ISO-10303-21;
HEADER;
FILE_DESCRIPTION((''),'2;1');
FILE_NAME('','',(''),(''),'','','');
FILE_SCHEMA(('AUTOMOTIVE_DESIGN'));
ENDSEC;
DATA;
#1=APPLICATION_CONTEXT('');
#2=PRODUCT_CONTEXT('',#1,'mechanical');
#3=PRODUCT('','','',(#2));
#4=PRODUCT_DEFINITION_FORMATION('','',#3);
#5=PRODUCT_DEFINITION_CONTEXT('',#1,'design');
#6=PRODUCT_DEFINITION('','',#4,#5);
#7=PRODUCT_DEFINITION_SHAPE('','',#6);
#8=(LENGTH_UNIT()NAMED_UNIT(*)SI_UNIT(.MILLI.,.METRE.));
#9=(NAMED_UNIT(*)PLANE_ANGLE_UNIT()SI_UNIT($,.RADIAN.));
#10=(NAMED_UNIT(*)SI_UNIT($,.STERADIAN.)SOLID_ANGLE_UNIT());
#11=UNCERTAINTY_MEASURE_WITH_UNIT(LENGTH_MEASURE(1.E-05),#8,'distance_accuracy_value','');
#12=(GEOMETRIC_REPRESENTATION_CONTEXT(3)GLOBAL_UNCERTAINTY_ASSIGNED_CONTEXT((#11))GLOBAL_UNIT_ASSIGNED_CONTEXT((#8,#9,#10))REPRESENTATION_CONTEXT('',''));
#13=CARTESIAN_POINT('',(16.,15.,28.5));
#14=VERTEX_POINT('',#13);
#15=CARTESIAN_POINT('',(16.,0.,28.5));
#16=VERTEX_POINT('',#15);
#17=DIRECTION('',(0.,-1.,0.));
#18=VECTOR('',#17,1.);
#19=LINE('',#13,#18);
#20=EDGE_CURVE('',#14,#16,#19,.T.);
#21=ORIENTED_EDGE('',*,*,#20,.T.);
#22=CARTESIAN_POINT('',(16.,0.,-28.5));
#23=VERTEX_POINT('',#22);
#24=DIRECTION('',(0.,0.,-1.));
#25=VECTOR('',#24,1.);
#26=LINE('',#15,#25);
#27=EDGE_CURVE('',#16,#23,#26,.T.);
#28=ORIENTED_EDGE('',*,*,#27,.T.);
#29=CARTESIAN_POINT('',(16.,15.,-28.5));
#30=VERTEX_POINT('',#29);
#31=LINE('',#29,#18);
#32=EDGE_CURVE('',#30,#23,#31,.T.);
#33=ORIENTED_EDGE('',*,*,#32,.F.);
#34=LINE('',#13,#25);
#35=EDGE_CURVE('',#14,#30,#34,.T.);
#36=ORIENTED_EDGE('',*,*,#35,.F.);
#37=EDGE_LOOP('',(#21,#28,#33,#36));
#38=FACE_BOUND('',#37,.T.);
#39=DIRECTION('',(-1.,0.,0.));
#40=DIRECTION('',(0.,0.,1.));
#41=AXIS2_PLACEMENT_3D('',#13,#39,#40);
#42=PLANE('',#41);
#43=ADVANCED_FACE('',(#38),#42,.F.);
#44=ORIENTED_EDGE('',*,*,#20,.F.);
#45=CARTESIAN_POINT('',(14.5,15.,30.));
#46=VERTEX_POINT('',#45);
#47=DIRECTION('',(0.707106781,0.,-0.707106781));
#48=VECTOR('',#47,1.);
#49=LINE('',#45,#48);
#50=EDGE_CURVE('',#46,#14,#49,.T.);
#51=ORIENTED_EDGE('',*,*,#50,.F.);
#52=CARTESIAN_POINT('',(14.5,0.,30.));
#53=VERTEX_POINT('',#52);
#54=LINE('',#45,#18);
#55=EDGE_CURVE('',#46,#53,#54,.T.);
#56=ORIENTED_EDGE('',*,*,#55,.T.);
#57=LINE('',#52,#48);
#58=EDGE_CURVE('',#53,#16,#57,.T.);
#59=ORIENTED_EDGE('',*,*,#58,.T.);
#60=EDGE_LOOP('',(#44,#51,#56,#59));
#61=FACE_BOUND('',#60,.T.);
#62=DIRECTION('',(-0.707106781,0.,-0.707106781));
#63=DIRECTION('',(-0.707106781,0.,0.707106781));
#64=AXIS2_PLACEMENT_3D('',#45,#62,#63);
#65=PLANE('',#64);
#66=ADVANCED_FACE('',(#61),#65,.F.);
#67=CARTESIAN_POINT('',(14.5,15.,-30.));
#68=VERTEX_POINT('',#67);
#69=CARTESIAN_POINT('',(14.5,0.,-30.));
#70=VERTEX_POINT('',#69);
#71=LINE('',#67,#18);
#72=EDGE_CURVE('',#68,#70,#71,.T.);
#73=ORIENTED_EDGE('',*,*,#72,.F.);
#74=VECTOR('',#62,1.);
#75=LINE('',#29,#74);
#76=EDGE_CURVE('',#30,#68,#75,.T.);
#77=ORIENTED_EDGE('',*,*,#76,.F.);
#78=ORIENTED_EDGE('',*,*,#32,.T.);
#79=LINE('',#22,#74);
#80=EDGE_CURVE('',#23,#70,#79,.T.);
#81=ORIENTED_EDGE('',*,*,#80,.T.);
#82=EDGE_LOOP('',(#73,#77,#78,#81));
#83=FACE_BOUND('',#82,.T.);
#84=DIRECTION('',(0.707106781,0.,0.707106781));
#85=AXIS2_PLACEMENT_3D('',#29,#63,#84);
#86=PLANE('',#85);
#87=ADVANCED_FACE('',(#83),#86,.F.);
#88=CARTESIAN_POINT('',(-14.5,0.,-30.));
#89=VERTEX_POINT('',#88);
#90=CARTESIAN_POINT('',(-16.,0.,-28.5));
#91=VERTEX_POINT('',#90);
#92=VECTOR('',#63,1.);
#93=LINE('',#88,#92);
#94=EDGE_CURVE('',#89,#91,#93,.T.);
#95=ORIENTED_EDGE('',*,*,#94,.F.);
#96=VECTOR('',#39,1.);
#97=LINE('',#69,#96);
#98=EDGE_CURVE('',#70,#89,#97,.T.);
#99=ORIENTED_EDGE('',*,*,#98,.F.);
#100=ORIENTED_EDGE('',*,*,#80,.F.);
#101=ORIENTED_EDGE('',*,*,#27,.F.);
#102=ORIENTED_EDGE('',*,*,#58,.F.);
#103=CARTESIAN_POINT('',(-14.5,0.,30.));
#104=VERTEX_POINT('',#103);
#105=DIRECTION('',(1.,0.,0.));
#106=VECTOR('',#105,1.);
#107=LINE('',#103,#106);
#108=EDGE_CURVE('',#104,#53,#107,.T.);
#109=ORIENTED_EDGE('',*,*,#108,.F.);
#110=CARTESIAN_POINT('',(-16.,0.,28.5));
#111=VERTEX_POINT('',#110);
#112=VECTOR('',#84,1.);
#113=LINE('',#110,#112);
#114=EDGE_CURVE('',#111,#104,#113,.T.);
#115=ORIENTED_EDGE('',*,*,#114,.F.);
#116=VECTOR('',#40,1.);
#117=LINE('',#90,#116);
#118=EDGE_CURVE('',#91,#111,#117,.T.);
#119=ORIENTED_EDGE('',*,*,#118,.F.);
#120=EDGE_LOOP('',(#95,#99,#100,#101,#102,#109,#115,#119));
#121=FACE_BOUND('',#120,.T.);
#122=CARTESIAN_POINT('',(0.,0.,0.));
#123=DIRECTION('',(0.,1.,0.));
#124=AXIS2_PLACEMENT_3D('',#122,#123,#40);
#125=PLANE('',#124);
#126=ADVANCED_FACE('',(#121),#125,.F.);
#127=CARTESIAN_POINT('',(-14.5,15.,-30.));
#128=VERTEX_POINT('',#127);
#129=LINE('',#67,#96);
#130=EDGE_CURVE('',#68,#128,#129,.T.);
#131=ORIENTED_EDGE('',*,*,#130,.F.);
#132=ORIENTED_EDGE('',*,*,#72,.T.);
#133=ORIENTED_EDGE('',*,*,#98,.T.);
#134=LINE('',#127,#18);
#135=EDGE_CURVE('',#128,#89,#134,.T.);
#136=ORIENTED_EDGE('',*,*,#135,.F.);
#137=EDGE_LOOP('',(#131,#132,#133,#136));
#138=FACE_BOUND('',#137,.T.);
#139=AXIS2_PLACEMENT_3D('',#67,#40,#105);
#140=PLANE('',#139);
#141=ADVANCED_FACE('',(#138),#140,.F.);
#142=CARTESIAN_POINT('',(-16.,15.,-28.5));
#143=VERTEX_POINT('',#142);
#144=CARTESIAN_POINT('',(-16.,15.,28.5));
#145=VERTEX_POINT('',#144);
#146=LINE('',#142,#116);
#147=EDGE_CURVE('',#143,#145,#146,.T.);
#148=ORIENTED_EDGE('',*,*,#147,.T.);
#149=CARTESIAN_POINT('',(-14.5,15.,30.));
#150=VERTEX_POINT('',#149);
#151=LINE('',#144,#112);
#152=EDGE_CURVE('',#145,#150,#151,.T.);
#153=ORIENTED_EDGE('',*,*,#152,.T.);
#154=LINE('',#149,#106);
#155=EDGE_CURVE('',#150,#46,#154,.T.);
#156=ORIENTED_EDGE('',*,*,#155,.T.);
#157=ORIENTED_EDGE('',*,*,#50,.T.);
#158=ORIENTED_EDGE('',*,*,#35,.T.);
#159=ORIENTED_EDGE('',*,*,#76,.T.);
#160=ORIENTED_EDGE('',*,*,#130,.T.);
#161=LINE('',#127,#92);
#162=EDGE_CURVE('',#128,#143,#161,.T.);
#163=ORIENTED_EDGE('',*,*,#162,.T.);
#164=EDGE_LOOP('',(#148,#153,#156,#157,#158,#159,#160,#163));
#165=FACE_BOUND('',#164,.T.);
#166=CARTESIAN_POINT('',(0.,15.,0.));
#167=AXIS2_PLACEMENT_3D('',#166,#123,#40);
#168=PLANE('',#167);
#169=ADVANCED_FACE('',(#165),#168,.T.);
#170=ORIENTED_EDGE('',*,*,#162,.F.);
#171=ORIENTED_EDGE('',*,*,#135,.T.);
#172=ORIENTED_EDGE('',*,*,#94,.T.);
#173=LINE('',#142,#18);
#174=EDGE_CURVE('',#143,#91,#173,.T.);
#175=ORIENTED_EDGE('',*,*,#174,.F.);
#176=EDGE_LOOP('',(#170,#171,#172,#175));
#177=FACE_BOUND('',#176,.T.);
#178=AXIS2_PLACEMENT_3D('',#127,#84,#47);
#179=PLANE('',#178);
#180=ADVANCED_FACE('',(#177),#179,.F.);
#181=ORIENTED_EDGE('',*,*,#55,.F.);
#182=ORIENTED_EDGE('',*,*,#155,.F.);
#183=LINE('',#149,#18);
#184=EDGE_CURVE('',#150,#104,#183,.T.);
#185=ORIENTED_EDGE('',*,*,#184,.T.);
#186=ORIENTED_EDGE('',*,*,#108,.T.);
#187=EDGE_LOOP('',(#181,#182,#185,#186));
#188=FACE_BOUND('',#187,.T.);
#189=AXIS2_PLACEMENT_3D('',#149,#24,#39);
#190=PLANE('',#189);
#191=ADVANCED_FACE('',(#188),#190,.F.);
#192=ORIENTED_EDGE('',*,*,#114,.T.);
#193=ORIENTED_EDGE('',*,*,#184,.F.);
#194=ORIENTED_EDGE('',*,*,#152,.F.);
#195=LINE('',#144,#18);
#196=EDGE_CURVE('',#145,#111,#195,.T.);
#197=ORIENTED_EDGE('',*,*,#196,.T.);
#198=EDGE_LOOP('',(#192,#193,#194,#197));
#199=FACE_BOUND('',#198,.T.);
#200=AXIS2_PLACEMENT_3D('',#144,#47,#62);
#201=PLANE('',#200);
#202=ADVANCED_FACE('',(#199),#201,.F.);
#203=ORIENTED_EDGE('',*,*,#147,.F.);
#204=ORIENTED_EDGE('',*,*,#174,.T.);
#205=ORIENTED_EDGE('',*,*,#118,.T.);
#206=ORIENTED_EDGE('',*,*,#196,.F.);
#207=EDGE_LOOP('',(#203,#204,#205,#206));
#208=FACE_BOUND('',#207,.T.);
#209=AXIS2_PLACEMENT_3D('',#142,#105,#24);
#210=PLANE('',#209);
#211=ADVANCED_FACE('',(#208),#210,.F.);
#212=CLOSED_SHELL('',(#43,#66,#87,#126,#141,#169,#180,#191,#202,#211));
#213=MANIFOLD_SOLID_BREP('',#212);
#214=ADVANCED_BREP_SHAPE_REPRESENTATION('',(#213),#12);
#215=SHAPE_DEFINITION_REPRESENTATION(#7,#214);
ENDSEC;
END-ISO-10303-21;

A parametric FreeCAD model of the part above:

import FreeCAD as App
import Part
import Sketcher
Q = App.Units.Quantity


def add_polygon(sketch, points):
    """Adds a closed chain of lines whose ends are joined by coincident constraints."""
    first, n = sketch.GeometryCount, len(points)
    for a, b in zip(points, points[1:] + points[:1]):
        sketch.addGeometry(Part.LineSegment(App.Vector(*a, 0), App.Vector(*b, 0)), False)
    for i in range(n):
        sketch.addConstraint(Sketcher.Constraint("Coincident", first + i, 2, first + (i + 1) % n, 1))

doc = App.newDocument("Part")
body = doc.addObject("PartDesign::Body", "Body")

# Sketch on XZ plane
sketch1 = doc.addObject("Sketcher::SketchObject", "Sketch")
body.addObject(sketch1)
sketch1.AttachmentSupport = (doc.XZ_Plane, [""])
sketch1.MapMode = "FlatFace"
add_polygon(sketch1, [(-14.5, 30), (14.5, 30), (16, 28.5), (16, -28.5), (14.5, -30), (-14.5, -30), (-16, -28.5), (-16, 28.5)])  # lines 0-7
sketch1.addConstraint(Sketcher.Constraint("Horizontal", 0))
sketch1.addConstraint(Sketcher.Constraint("Vertical", 2))
sketch1.addConstraint(Sketcher.Constraint("Horizontal", 4))
sketch1.addConstraint(Sketcher.Constraint("Vertical", 6))
sketch1.addConstraint(Sketcher.Constraint("Symmetric", 0, 2, 4, 2, -1, 1))
sketch1.addConstraint(Sketcher.Constraint("Symmetric", 1, 2, 5, 2, -1, 1))
sketch1.addConstraint(Sketcher.Constraint("Perpendicular", 1, 3))
sketch1.addConstraint(Sketcher.Constraint("Perpendicular", 5, 7))
sketch1.addConstraint(Sketcher.Constraint("Horizontal", 2, 2, 5, 2))
sketch1.addConstraint(Sketcher.Constraint("Horizontal", 1, 2, 6, 2))
sketch1.addConstraint(Sketcher.Constraint("Vertical", 0, 2, 3, 2))
sketch1.addConstraint(Sketcher.Constraint("DistanceX", 0, 1, 0, 2, Q("29 mm")))
sketch1.addConstraint(Sketcher.Constraint("DistanceY", 2, 2, 2, 1, Q("57 mm")))
sketch1.addConstraint(Sketcher.Constraint("DistanceY", -1, 1, 0, 2, Q("30 mm")))
pad1 = doc.addObject("PartDesign::Pad", "Pad")
body.addObject(pad1)
pad1.Profile = sketch1
pad1.Length = 15
pad1.Reversed = True

doc.recompute()
